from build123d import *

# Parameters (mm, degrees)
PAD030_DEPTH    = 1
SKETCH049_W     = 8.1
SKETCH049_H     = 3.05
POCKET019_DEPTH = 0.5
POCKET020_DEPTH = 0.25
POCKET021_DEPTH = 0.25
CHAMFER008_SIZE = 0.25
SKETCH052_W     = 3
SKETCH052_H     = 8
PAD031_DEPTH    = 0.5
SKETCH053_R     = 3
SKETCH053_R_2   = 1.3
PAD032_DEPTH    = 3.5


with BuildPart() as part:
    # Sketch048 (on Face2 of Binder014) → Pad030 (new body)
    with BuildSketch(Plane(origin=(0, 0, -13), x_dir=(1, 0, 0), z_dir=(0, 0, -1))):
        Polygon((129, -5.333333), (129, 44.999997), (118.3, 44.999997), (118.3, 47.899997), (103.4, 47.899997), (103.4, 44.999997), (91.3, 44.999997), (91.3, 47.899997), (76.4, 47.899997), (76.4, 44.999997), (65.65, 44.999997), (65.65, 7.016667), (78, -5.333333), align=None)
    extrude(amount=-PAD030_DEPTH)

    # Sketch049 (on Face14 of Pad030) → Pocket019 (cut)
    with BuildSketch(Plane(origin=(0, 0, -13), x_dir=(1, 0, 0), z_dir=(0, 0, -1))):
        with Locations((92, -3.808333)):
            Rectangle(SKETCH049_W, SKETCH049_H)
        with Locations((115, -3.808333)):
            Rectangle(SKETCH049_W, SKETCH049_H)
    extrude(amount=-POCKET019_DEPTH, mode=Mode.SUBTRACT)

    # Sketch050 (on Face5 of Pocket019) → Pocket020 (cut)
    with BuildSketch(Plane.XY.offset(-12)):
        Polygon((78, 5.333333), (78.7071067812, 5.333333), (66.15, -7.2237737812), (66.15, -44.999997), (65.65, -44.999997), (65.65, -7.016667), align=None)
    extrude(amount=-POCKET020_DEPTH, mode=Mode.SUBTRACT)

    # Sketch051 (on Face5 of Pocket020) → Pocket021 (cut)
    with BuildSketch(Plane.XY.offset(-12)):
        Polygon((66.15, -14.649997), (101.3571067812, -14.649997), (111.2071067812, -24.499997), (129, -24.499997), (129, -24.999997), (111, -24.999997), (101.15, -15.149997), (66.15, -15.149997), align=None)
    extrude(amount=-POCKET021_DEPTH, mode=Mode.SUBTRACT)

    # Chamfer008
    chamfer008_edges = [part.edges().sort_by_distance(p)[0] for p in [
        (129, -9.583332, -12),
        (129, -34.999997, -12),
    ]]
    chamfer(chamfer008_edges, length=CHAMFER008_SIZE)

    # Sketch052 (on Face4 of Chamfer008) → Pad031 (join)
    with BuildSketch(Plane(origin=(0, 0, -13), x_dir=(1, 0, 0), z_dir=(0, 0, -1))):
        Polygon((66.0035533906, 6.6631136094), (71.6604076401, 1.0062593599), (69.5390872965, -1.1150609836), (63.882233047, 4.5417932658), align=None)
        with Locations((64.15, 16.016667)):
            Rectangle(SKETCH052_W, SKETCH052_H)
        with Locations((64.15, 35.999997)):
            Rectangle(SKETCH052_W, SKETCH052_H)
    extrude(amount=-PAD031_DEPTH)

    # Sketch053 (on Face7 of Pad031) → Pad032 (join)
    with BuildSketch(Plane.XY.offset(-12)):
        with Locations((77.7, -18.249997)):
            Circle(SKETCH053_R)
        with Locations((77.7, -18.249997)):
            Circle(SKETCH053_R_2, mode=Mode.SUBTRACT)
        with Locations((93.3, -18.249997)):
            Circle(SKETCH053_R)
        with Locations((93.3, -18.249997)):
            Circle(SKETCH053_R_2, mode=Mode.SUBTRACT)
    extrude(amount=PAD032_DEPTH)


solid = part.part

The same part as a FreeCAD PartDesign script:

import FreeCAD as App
import Part
import Sketcher
Q = App.Units.Quantity


def edges_at(feature, points):
    """Names of the edges that pass closest to the given points."""
    edges = feature.Shape.Edges
    near = lambda p: min(range(len(edges)), key=lambda i: edges[i].distToShape(Part.Vertex(*p))[0])
    return sorted({f"Edge{near(p) + 1}" for p in points})

doc = App.newDocument("Part")
body = doc.addObject("PartDesign::Body", "Body")

# Sketch on XY plane
sketch1 = body.newObject("Sketcher::SketchObject", "Sketch")
sketch1.AttachmentSupport = (doc.getObject("XY_Plane"), [""])
sketch1.MapMode = "FlatFace"
sketch1.AttachmentOffset = App.Placement(App.Vector(0, 0, -13), App.Rotation())
sketch1.addGeometry(Part.LineSegment(App.Vector(129, 5.3, 0), App.Vector(129, -45, 0)), False)
sketch1.addGeometry(Part.LineSegment(App.Vector(129, -45, 0), App.Vector(118.3, -45, 0)), False)
sketch1.addGeometry(Part.LineSegment(App.Vector(118.3, -45, 0), App.Vector(118.3, -47.9, 0)), False)
sketch1.addGeometry(Part.LineSegment(App.Vector(118.3, -47.9, 0), App.Vector(103.4, -47.9, 0)), False)
sketch1.addGeometry(Part.LineSegment(App.Vector(103.4, -47.9, 0), App.Vector(103.4, -45, 0)), False)
sketch1.addGeometry(Part.LineSegment(App.Vector(103.4, -45, 0), App.Vector(91.3, -45, 0)), False)
sketch1.addGeometry(Part.LineSegment(App.Vector(91.3, -45, 0), App.Vector(91.3, -47.9, 0)), False)
sketch1.addGeometry(Part.LineSegment(App.Vector(91.3, -47.9, 0), App.Vector(76.4, -47.9, 0)), False)
sketch1.addGeometry(Part.LineSegment(App.Vector(76.4, -47.9, 0), App.Vector(76.4, -45, 0)), False)
sketch1.addGeometry(Part.LineSegment(App.Vector(76.4, -45, 0), App.Vector(65.7, -45, 0)), False)
sketch1.addGeometry(Part.LineSegment(App.Vector(65.7, -45, 0), App.Vector(65.7, -7, 0)), False)
sketch1.addGeometry(Part.LineSegment(App.Vector(65.7, -7, 0), App.Vector(78, 5.3, 0)), False)
sketch1.addGeometry(Part.LineSegment(App.Vector(78, 5.3, 0), App.Vector(129, 5.3, 0)), False)
sketch1.addConstraint(Sketcher.Constraint("Coincident", 0, 2, 1, 1))
sketch1.addConstraint(Sketcher.Constraint("Coincident", 1, 2, 2, 1))
sketch1.addConstraint(Sketcher.Constraint("Coincident", 2, 2, 3, 1))
sketch1.addConstraint(Sketcher.Constraint("Coincident", 3, 2, 4, 1))
sketch1.addConstraint(Sketcher.Constraint("Coincident", 4, 2, 5, 1))
sketch1.addConstraint(Sketcher.Constraint("Coincident", 5, 2, 6, 1))
sketch1.addConstraint(Sketcher.Constraint("Coincident", 6, 2, 7, 1))
sketch1.addConstraint(Sketcher.Constraint("Coincident", 7, 2, 8, 1))
sketch1.addConstraint(Sketcher.Constraint("Coincident", 8, 2, 9, 1))
sketch1.addConstraint(Sketcher.Constraint("Coincident", 9, 2, 10, 1))
sketch1.addConstraint(Sketcher.Constraint("Coincident", 10, 2, 11, 1))
sketch1.addConstraint(Sketcher.Constraint("Coincident", 11, 2, 12, 1))
sketch1.addConstraint(Sketcher.Constraint("Coincident", 12, 2, 0, 1))
sketch1.addConstraint(Sketcher.Constraint("Vertical", 0))
sketch1.addConstraint(Sketcher.Constraint("Horizontal", 1))
sketch1.addConstraint(Sketcher.Constraint("Vertical", 2))
sketch1.addConstraint(Sketcher.Constraint("Horizontal", 3))
sketch1.addConstraint(Sketcher.Constraint("Vertical", 4))
sketch1.addConstraint(Sketcher.Constraint("Horizontal", 5))
sketch1.addConstraint(Sketcher.Constraint("Vertical", 6))
sketch1.addConstraint(Sketcher.Constraint("Horizontal", 7))
sketch1.addConstraint(Sketcher.Constraint("Vertical", 8))
sketch1.addConstraint(Sketcher.Constraint("Horizontal", 9))
sketch1.addConstraint(Sketcher.Constraint("Vertical", 10))
sketch1.addConstraint(Sketcher.Constraint("Horizontal", 12))
sketch1.addConstraint(Sketcher.Constraint("Horizontal", 1, 2, 4, 2))
sketch1.addConstraint(Sketcher.Constraint("Horizontal", 3, 2, 6, 2))
sketch1.addConstraint(Sketcher.Constraint("Horizontal", 5, 2, 8, 2))
sketch1.addConstraint(Sketcher.Constraint("Equal", 3, 7))
sketch1.addConstraint(Sketcher.Constraint("DistanceX", 12, 1, 12, 2, Q("51 mm")))
sketch1.addConstraint(Sketcher.Constraint("Angle", 11, Q("45 deg")))
sketch1.addConstraint(Sketcher.Constraint("DistanceX", 1, 2, 1, 1, Q("10.7 mm")))
sketch1.addConstraint(Sketcher.Constraint("DistanceX", 3, 2, 3, 1, Q("14.9 mm")))
sketch1.addConstraint(Sketcher.Constraint("DistanceX", 5, 2, 5, 1, Q("12.1 mm")))
sketch1.addConstraint(Sketcher.Constraint("DistanceY", 2, 2, 2, 1, Q("2.9 mm")))
sketch1.addConstraint(Sketcher.Constraint("DistanceX", -1, 1, 0, 2, Q("129 mm")))
sketch1.addConstraint(Sketcher.Constraint("DistanceX", 9, 2, 9, 1, Q("10.75 mm")))
sketch1.addConstraint(Sketcher.Constraint("DistanceY", 0, 2, 0, 1, Q("50.33333 mm")))
sketch1.addConstraint(Sketcher.Constraint("DistanceY", 0, 2, -1, 1, Q("44.999997 mm")))
pad1 = body.newObject("PartDesign::Pad", "Pad")
pad1.Profile = sketch1
pad1.Length = 1

# Sketch on XY plane
sketch2 = body.newObject("Sketcher::SketchObject", "Sketch001")
sketch2.AttachmentSupport = (doc.getObject("XY_Plane"), [""])
sketch2.MapMode = "FlatFace"
sketch2.AttachmentOffset = App.Placement(App.Vector(0, 0, -13), App.Rotation())
sketch2.addGeometry(Part.LineSegment(App.Vector(88, 2.3, 0), App.Vector(88, 5.3, 0)), False)
sketch2.addGeometry(Part.LineSegment(App.Vector(88, 5.3, 0), App.Vector(96, 5.3, 0)), False)
sketch2.addGeometry(Part.LineSegment(App.Vector(96, 5.3, 0), App.Vector(96, 2.3, 0)), False)
sketch2.addGeometry(Part.LineSegment(App.Vector(96, 2.3, 0), App.Vector(88, 2.3, 0)), False)
sketch2.addGeometry(Part.LineSegment(App.Vector(111, 2.3, 0), App.Vector(111, 5.3, 0)), False)
sketch2.addGeometry(Part.LineSegment(App.Vector(111, 5.3, 0), App.Vector(119, 5.3, 0)), False)
sketch2.addGeometry(Part.LineSegment(App.Vector(119, 5.3, 0), App.Vector(119, 2.3, 0)), False)
sketch2.addGeometry(Part.LineSegment(App.Vector(119, 2.3, 0), App.Vector(111, 2.3, 0)), False)
sketch2.addConstraint(Sketcher.Constraint("Coincident", 0, 2, 1, 1))
sketch2.addConstraint(Sketcher.Constraint("Coincident", 1, 2, 2, 1))
sketch2.addConstraint(Sketcher.Constraint("Coincident", 2, 2, 3, 1))
sketch2.addConstraint(Sketcher.Constraint("Coincident", 3, 2, 0, 1))
sketch2.addConstraint(Sketcher.Constraint("Coincident", 4, 2, 5, 1))
sketch2.addConstraint(Sketcher.Constraint("Coincident", 5, 2, 6, 1))
sketch2.addConstraint(Sketcher.Constraint("Coincident", 6, 2, 7, 1))
sketch2.addConstraint(Sketcher.Constraint("Coincident", 7, 2, 4, 1))
sketch2.addConstraint(Sketcher.Constraint("Vertical", 0))
sketch2.addConstraint(Sketcher.Constraint("Horizontal", 1))
sketch2.addConstraint(Sketcher.Constraint("Vertical", 2))
sketch2.addConstraint(Sketcher.Constraint("Horizontal", 3))
sketch2.addConstraint(Sketcher.Constraint("Vertical", 4))
sketch2.addConstraint(Sketcher.Constraint("Horizontal", 5))
sketch2.addConstraint(Sketcher.Constraint("Vertical", 6))
sketch2.addConstraint(Sketcher.Constraint("Horizontal", 7))
sketch2.addConstraint(Sketcher.Constraint("Horizontal", 1, 2, 4, 2))
sketch2.addConstraint(Sketcher.Constraint("Horizontal", 3, 2, 6, 2))
sketch2.addConstraint(Sketcher.Constraint("Equal", 3, 5))
sketch2.addConstraint(Sketcher.Constraint("DistanceX", 1, 1, 1, 2, Q("8.1 mm")))
sketch2.addConstraint(Sketcher.Constraint("DistanceX", 0, 2, 4, 2, Q("23 mm")))
sketch2.addConstraint(Sketcher.Constraint("DistanceY", 0, 1, 0, 2, Q("3.05 mm")))
sketch2.addConstraint(Sketcher.Constraint("DistanceX", -1, 1, 0, 2, Q("87.95 mm")))
sketch2.addConstraint(Sketcher.Constraint("DistanceY", -1, 1, 0, 2, Q("5.333333 mm")))
pocket1 = body.newObject("PartDesign::Pocket", "Pocket")
pocket1.Profile = sketch2
pocket1.Length = 0.5
pocket1.Reversed = True

# Sketch on XY plane
sketch3 = body.newObject("Sketcher::SketchObject", "Sketch002")
sketch3.AttachmentSupport = (doc.getObject("XY_Plane"), [""])
sketch3.MapMode = "FlatFace"
sketch3.AttachmentOffset = App.Placement(App.Vector(0, 0, -12), App.Rotation())
sketch3.addGeometry(Part.LineSegment(App.Vector(78.7, 5.3, 0), App.Vector(78, 5.3, 0)), False)
sketch3.addGeometry(Part.LineSegment(App.Vector(78, 5.3, 0), App.Vector(65.7, -7, 0)), False)
sketch3.addGeometry(Part.LineSegment(App.Vector(65.7, -7, 0), App.Vector(65.7, -45, 0)), False)
sketch3.addGeometry(Part.LineSegment(App.Vector(65.7, -45, 0), App.Vector(66.2, -45, 0)), False)
sketch3.addGeometry(Part.LineSegment(App.Vector(66.2, -45, 0), App.Vector(66.2, -7.2, 0)), False)
sketch3.addGeometry(Part.LineSegment(App.Vector(66.2, -7.2, 0), App.Vector(78.7, 5.3, 0)), False)
sketch3.addConstraint(Sketcher.Constraint("Coincident", 0, 2, 1, 1))
sketch3.addConstraint(Sketcher.Constraint("Coincident", 1, 2, 2, 1))
sketch3.addConstraint(Sketcher.Constraint("Coincident", 2, 2, 3, 1))
sketch3.addConstraint(Sketcher.Constraint("Coincident", 3, 2, 4, 1))
sketch3.addConstraint(Sketcher.Constraint("Coincident", 4, 2, 5, 1))
sketch3.addConstraint(Sketcher.Constraint("Coincident", 5, 2, 0, 1))
sketch3.addConstraint(Sketcher.Constraint("Horizontal", 0))
sketch3.addConstraint(Sketcher.Constraint("Vertical", 2))
sketch3.addConstraint(Sketcher.Constraint("Horizontal", 3))
sketch3.addConstraint(Sketcher.Constraint("Vertical", 4))
sketch3.addConstraint(Sketcher.Constraint("Parallel", 1, 5))
sketch3.addConstraint(Sketcher.Constraint("Angle", 1, Q("-135 deg")))
sketch3.addConstraint(Sketcher.Constraint("DistanceX", 3, 1, 3, 2, Q("0.5 mm")))
sketch3.addConstraint(Sketcher.Constraint("DistanceX", -1, 1, 0, 2, Q("78 mm")))
sketch3.addConstraint(Sketcher.Constraint("DistanceX", -1, 1, 1, 2, Q("65.65 mm")))
sketch3.addConstraint(Sketcher.Constraint("DistanceY", 2, 2, 2, 1, Q("37.98333 mm")))
sketch3.addConstraint(Sketcher.Constraint("Distance", 5, Q("17.758431 mm")))
sketch3.addConstraint(Sketcher.Constraint("DistanceY", -1, 1, 0, 2, Q("5.333333 mm")))
pocket2 = body.newObject("PartDesign::Pocket", "Pocket001")
pocket2.Profile = sketch3
pocket2.Length = 0.25

# Sketch on XY plane
sketch4 = body.newObject("Sketcher::SketchObject", "Sketch003")
sketch4.AttachmentSupport = (doc.getObject("XY_Plane"), [""])
sketch4.MapMode = "FlatFace"
sketch4.AttachmentOffset = App.Placement(App.Vector(0, 0, -12), App.Rotation())
sketch4.addGeometry(Part.LineSegment(App.Vector(101.4, -14.6, 0), App.Vector(66.2, -14.6, 0)), False)
sketch4.addGeometry(Part.LineSegment(App.Vector(66.2, -14.6, 0), App.Vector(66.2, -15.1, 0)), False)
sketch4.addGeometry(Part.LineSegment(App.Vector(66.2, -15.1, 0), App.Vector(101.2, -15.1, 0)), False)
sketch4.addGeometry(Part.LineSegment(App.Vector(101.2, -15.1, 0), App.Vector(111, -25, 0)), False)
sketch4.addGeometry(Part.LineSegment(App.Vector(111, -25, 0), App.Vector(129, -25, 0)), False)
sketch4.addGeometry(Part.LineSegment(App.Vector(129, -25, 0), App.Vector(129, -24.5, 0)), False)
sketch4.addGeometry(Part.LineSegment(App.Vector(129, -24.5, 0), App.Vector(111.2, -24.5, 0)), False)
sketch4.addGeometry(Part.LineSegment(App.Vector(111.2, -24.5, 0), App.Vector(101.4, -14.6, 0)), False)
sketch4.addConstraint(Sketcher.Constraint("Coincident", 0, 2, 1, 1))
sketch4.addConstraint(Sketcher.Constraint("Coincident", 1, 2, 2, 1))
sketch4.addConstraint(Sketcher.Constraint("Coincident", 2, 2, 3, 1))
sketch4.addConstraint(Sketcher.Constraint("Coincident", 3, 2, 4, 1))
sketch4.addConstraint(Sketcher.Constraint("Coincident", 4, 2, 5, 1))
sketch4.addConstraint(Sketcher.Constraint("Coincident", 5, 2, 6, 1))
sketch4.addConstraint(Sketcher.Constraint("Coincident", 6, 2, 7, 1))
sketch4.addConstraint(Sketcher.Constraint("Coincident", 7, 2, 0, 1))
sketch4.addConstraint(Sketcher.Constraint("Horizontal", 0))
sketch4.addConstraint(Sketcher.Constraint("Vertical", 1))
sketch4.addConstraint(Sketcher.Constraint("Horizontal", 2))
sketch4.addConstraint(Sketcher.Constraint("Horizontal", 4))
sketch4.addConstraint(Sketcher.Constraint("Vertical", 5))
sketch4.addConstraint(Sketcher.Constraint("Horizontal", 6))
sketch4.addConstraint(Sketcher.Constraint("Parallel", 3, 7))
sketch4.addConstraint(Sketcher.Constraint("Equal", 1, 5))
sketch4.addConstraint(Sketcher.Constraint("DistanceX", 2, 1, 2, 2, Q("35 mm")))
sketch4.addConstraint(Sketcher.Constraint("DistanceX", 4, 1, 4, 2, Q("18 mm")))
sketch4.addConstraint(Sketcher.Constraint("Angle", 3, Q("-45 deg")))
sketch4.addConstraint(Sketcher.Constraint("DistanceY", 1, 2, 1, 1, Q("0.5 mm")))
sketch4.addConstraint(Sketcher.Constraint("DistanceX", -1, 1, 3, 2, Q("111 mm")))
sketch4.addConstraint(Sketcher.Constraint("DistanceX", -1, 1, 0, 2, Q("66.15 mm")))
sketch4.addConstraint(Sketcher.Constraint("DistanceX", 0, 2, 0, 1, Q("35.207107 mm")))
sketch4.addConstraint(Sketcher.Constraint("DistanceY", 0, 2, -1, 1, Q("14.649997 mm")))
pocket3 = body.newObject("PartDesign::Pocket", "Pocket002")
pocket3.Profile = sketch4
pocket3.Length = 0.25
doc.recompute()

chamfer = body.newObject("PartDesign::Chamfer", "Chamfer")
chamfer.Base = (pocket3, edges_at(pocket3, [(129, -9.583, -12), (129, -35, -12)]))
chamfer.Size = 0.25

# Sketch on XY plane
sketch5 = body.newObject("Sketcher::SketchObject", "Sketch004")
sketch5.AttachmentSupport = (doc.getObject("XY_Plane"), [""])
sketch5.MapMode = "FlatFace"
sketch5.AttachmentOffset = App.Placement(App.Vector(0, 0, -13), App.Rotation())
sketch5.addGeometry(Part.LineSegment(App.Vector(71.7, -1, 0), App.Vector(66, -6.7, 0)), False)
sketch5.addGeometry(Part.LineSegment(App.Vector(66, -6.7, 0), App.Vector(63.9, -4.5, 0)), False)
sketch5.addGeometry(Part.LineSegment(App.Vector(63.9, -4.5, 0), App.Vector(69.5, 1.1, 0)), False)
sketch5.addGeometry(Part.LineSegment(App.Vector(69.5, 1.1, 0), App.Vector(71.7, -1, 0)), False)
sketch5.addGeometry(Part.LineSegment(App.Vector(62.6, -20, 0), App.Vector(62.6, -12, 0)), False)
sketch5.addGeometry(Part.LineSegment(App.Vector(62.6, -12, 0), App.Vector(65.7, -12, 0)), False)
sketch5.addGeometry(Part.LineSegment(App.Vector(65.7, -12, 0), App.Vector(65.7, -20, 0)), False)
sketch5.addGeometry(Part.LineSegment(App.Vector(65.7, -20, 0), App.Vector(62.6, -20, 0)), False)
sketch5.addGeometry(Part.LineSegment(App.Vector(62.6, -40, 0), App.Vector(62.6, -32, 0)), False)
sketch5.addGeometry(Part.LineSegment(App.Vector(62.6, -32, 0), App.Vector(65.7, -32, 0)), False)
sketch5.addGeometry(Part.LineSegment(App.Vector(65.7, -32, 0), App.Vector(65.7, -40, 0)), False)
sketch5.addGeometry(Part.LineSegment(App.Vector(65.7, -40, 0), App.Vector(62.6, -40, 0)), False)
sketch5.addConstraint(Sketcher.Constraint("Coincident", 0, 2, 1, 1))
sketch5.addConstraint(Sketcher.Constraint("Coincident", 1, 2, 2, 1))
sketch5.addConstraint(Sketcher.Constraint("Coincident", 2, 2, 3, 1))
sketch5.addConstraint(Sketcher.Constraint("Coincident", 3, 2, 0, 1))
sketch5.addConstraint(Sketcher.Constraint("Coincident", 4, 2, 5, 1))
sketch5.addConstraint(Sketcher.Constraint("Coincident", 5, 2, 6, 1))
sketch5.addConstraint(Sketcher.Constraint("Coincident", 6, 2, 7, 1))
sketch5.addConstraint(Sketcher.Constraint("Coincident", 7, 2, 4, 1))
sketch5.addConstraint(Sketcher.Constraint("Coincident", 8, 2, 9, 1))
sketch5.addConstraint(Sketcher.Constraint("Coincident", 9, 2, 10, 1))
sketch5.addConstraint(Sketcher.Constraint("Coincident", 10, 2, 11, 1))
sketch5.addConstraint(Sketcher.Constraint("Coincident", 11, 2, 8, 1))
sketch5.addConstraint(Sketcher.Constraint("Vertical", 4))
sketch5.addConstraint(Sketcher.Constraint("Horizontal", 5))
sketch5.addConstraint(Sketcher.Constraint("Vertical", 6))
sketch5.addConstraint(Sketcher.Constraint("Horizontal", 7))
sketch5.addConstraint(Sketcher.Constraint("Vertical", 8))
sketch5.addConstraint(Sketcher.Constraint("Horizontal", 9))
sketch5.addConstraint(Sketcher.Constraint("Vertical", 10))
sketch5.addConstraint(Sketcher.Constraint("Horizontal", 11))
sketch5.addConstraint(Sketcher.Constraint("Perpendicular", 0, 1))
sketch5.addConstraint(Sketcher.Constraint("Perpendicular", 1, 2))
sketch5.addConstraint(Sketcher.Constraint("Perpendicular", 2, 3))
sketch5.addConstraint(Sketcher.Constraint("Vertical", 7, 2, 8, 2))
sketch5.addConstraint(Sketcher.Constraint("Vertical", 6, 2, 9, 2))
sketch5.addConstraint(Sketcher.Constraint("Equal", 6, 8))
sketch5.addConstraint(Sketcher.Constraint("DistanceX", 5, 1, 5, 2, Q("3 mm")))
sketch5.addConstraint(Sketcher.Constraint("DistanceY", 4, 1, 4, 2, Q("8 mm")))
sketch5.addConstraint(Sketcher.Constraint("Angle", 0, Q("-135 deg")))
sketch5.addConstraint(Sketcher.Constraint("Distance", 0, Q("8 mm")))
sketch5.addConstraint(Sketcher.Constraint("Distance", 1, Q("3 mm")))
sketch5.addConstraint(Sketcher.Constraint("DistanceX", -1, 1, 4, 2, Q("62.65 mm")))
sketch5.addConstraint(Sketcher.Constraint("DistanceY", -1, 1, 2, 2, Q("1.115061 mm")))
sketch5.addConstraint(Sketcher.Constraint("DistanceY", 8, 2, 7, 2, Q("11.98333 mm")))
sketch5.addConstraint(Sketcher.Constraint("DistanceX", -1, 1, 0, 2, Q("66.003553 mm")))
sketch5.addConstraint(Sketcher.Constraint("DistanceY", 4, 2, -1, 1, Q("12.016667 mm")))
pad2 = body.newObject("PartDesign::Pad", "Pad001")
pad2.Profile = sketch5
pad2.Length = 0.5

# Sketch on XY plane
sketch6 = body.newObject("Sketcher::SketchObject", "Sketch005")
sketch6.AttachmentSupport = (doc.getObject("XY_Plane"), [""])
sketch6.MapMode = "FlatFace"
sketch6.AttachmentOffset = App.Placement(App.Vector(0, 0, -12), App.Rotation())
sketch6.addGeometry(Part.Circle(App.Vector(77.7, -18.2, 0), App.Vector(0, 0, 1), 3), False)
sketch6.addGeometry(Part.Circle(App.Vector(77.7, -18.2, 0), App.Vector(0, 0, 1), 1.3), False)
sketch6.addGeometry(Part.Circle(App.Vector(93.3, -18.2, 0), App.Vector(0, 0, 1), 3), False)
sketch6.addGeometry(Part.Circle(App.Vector(93.3, -18.2, 0), App.Vector(0, 0, 1), 1.3), False)
sketch6.addConstraint(Sketcher.Constraint("Coincident", 1, 3, 0, 3))
sketch6.addConstraint(Sketcher.Constraint("Coincident", 3, 3, 2, 3))
sketch6.addConstraint(Sketcher.Constraint("Equal", 0, 2))
sketch6.addConstraint(Sketcher.Constraint("Equal", 1, 3))
sketch6.addConstraint(Sketcher.Constraint("Horizontal", 1, 3, 2, 3))
sketch6.addConstraint(Sketcher.Constraint("Diameter", 0, Q("6 mm")))
sketch6.addConstraint(Sketcher.Constraint("Diameter", 1, Q("2.6 mm")))
sketch6.addConstraint(Sketcher.Constraint("DistanceX", -1, 1, 0, 3, Q("77.7 mm")))
sketch6.addConstraint(Sketcher.Constraint("DistanceX", -1, 1, 2, 3, Q("93.3 mm")))
sketch6.addConstraint(Sketcher.Constraint("DistanceY", 0, 3, -1, 1, Q("18.249997 mm")))
pad3 = body.newObject("PartDesign::Pad", "Pad002")
pad3.Profile = sketch6
pad3.Length = 3.5

doc.recompute()
